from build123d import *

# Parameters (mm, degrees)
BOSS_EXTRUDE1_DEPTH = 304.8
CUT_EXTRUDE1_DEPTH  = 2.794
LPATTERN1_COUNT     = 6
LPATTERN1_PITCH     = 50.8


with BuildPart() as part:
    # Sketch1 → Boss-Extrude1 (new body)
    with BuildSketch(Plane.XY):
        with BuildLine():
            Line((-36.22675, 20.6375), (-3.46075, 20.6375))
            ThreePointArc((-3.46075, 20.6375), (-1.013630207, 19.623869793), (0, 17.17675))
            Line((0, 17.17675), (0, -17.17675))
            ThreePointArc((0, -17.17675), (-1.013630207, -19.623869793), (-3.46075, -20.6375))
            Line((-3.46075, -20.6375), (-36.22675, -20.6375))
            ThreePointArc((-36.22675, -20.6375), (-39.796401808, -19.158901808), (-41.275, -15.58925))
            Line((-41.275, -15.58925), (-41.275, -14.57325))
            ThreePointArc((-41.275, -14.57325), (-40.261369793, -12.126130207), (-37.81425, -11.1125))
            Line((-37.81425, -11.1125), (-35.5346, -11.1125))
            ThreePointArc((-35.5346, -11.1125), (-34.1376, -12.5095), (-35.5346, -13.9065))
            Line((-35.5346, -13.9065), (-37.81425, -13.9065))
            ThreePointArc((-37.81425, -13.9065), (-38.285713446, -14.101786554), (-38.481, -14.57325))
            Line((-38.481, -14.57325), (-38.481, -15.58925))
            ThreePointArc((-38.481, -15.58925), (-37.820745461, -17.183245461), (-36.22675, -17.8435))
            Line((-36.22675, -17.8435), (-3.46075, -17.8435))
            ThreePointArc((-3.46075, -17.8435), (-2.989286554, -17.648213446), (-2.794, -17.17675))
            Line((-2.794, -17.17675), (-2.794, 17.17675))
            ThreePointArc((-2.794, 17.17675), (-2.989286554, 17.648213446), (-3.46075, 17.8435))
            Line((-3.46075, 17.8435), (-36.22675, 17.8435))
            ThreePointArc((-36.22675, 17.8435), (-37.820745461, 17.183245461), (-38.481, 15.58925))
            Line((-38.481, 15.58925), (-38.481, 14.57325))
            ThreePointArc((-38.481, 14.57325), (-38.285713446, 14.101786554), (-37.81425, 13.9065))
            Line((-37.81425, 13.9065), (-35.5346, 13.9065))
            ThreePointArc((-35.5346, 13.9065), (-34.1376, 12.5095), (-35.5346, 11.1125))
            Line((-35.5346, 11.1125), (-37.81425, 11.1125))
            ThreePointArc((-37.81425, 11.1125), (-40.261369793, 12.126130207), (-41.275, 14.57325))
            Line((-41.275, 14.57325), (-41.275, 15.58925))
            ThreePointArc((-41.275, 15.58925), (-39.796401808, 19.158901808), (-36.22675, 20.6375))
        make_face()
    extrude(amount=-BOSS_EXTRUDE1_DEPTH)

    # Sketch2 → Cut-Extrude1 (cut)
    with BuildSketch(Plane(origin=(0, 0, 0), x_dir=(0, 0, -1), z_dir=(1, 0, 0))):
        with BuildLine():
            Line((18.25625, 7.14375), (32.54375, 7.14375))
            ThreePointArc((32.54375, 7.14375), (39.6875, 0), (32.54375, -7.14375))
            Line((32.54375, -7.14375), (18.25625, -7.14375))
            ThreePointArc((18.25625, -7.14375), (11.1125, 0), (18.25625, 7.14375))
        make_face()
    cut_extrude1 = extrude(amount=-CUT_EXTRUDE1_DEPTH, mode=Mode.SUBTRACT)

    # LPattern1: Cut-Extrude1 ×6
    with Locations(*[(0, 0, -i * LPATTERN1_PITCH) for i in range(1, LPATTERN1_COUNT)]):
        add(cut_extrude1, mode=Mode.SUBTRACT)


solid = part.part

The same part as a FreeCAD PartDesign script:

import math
import FreeCAD as App
import Part
import Sketcher

V = App.Vector
Q = App.Units.Quantity

doc = App.newDocument("Part")
params = doc.addObject("Spreadsheet::Sheet", "Params")
for row, (alias, value) in enumerate([
    ("sketch1_radius", "0.055 in"),
    ("sketch1_width", "1.29 in"),
    ("sketch1_height", "0.04 in"),
    ("pad1_length", "12 in"),
    ("sketch2_radius", "0.28125 in"),
    ("sketch2_height", "0.5625 in"),
    ("pocket1_length", "0.11 in"),
    ("linearpattern_pitch", "2 in"),
], start=1):
    params.set(f"A{row}", alias)
    params.set(f"B{row}", "=" + value)
    params.setAlias(f"B{row}", alias)

body = doc.addObject("PartDesign::Body", "Body")

# Sketch on XY plane
sketch1 = doc.addObject("Sketcher::SketchObject", "Sketch")
body.addObject(sketch1)
sketch1.AttachmentSupport = (doc.XY_Plane, [""])
sketch1.MapMode = "FlatFace"
sketch1.addGeometry([
    Part.LineSegment(V(-3.5, 20.6, 0), V(-36.2, 20.6, 0)),  # 0
    Part.ArcOfCircle(Part.Circle(V(-36.2, 15.6, 0), V(0, 0, 1), 5), math.radians(90), math.radians(180)),  # 1
    Part.LineSegment(V(-41.3, 15.6, 0), V(-41.3, 14.6, 0)),  # 2
    Part.ArcOfCircle(Part.Circle(V(-37.8, 14.6, 0), V(0, 0, 1), 3.5), math.radians(180), math.radians(270)),  # 3
    Part.LineSegment(V(-37.8, 11.1, 0), V(-35.5, 11.1, 0)),  # 4
    Part.ArcOfCircle(Part.Circle(V(-35.5, 12.5, 0), V(0, 0, 1), 1.4), math.radians(-90), math.radians(90)),  # 5
    Part.LineSegment(V(-35.5, 13.9, 0), V(-37.8, 13.9, 0)),  # 6
    Part.ArcOfCircle(Part.Circle(V(-37.8, 14.6, 0), V(0, 0, 1), 0.7), math.radians(-180), math.radians(-90)),  # 7
    Part.LineSegment(V(-38.5, 14.6, 0), V(-38.5, 15.6, 0)),  # 8
    Part.ArcOfCircle(Part.Circle(V(-36.2, 15.6, 0), V(0, 0, 1), 2.3), math.radians(90), math.radians(180)),  # 9
    Part.LineSegment(V(-36.2, 17.8, 0), V(-3.5, 17.8, 0)),  # 10
    Part.ArcOfCircle(Part.Circle(V(-3.5, 17.2, 0), V(0, 0, 1), 0.7), math.radians(0), math.radians(90)),  # 11
    Part.LineSegment(V(-2.8, 17.2, 0), V(-2.8, -17.2, 0)),  # 12
    Part.ArcOfCircle(Part.Circle(V(-3.5, -17.2, 0), V(0, 0, 1), 0.7), math.radians(-90), math.radians(0)),  # 13
    Part.LineSegment(V(-3.5, -17.8, 0), V(-36.2, -17.8, 0)),  # 14
    Part.ArcOfCircle(Part.Circle(V(-36.2, -15.6, 0), V(0, 0, 1), 2.3), math.radians(-180), math.radians(-90)),  # 15
    Part.LineSegment(V(-38.5, -15.6, 0), V(-38.5, -14.6, 0)),  # 16
    Part.ArcOfCircle(Part.Circle(V(-37.8, -14.6, 0), V(0, 0, 1), 0.7), math.radians(90), math.radians(180)),  # 17
    Part.LineSegment(V(-37.8, -13.9, 0), V(-35.5, -13.9, 0)),  # 18
    Part.ArcOfCircle(Part.Circle(V(-35.5, -12.5, 0), V(0, 0, 1), 1.4), math.radians(-90), math.radians(90)),  # 19
    Part.LineSegment(V(-35.5, -11.1, 0), V(-37.8, -11.1, 0)),  # 20
    Part.ArcOfCircle(Part.Circle(V(-37.8, -14.6, 0), V(0, 0, 1), 3.5), math.radians(90), math.radians(180)),  # 21
    Part.LineSegment(V(-41.3, -14.6, 0), V(-41.3, -15.6, 0)),  # 22
    Part.ArcOfCircle(Part.Circle(V(-36.2, -15.6, 0), V(0, 0, 1), 5), math.radians(180), math.radians(270)),  # 23
    Part.LineSegment(V(-36.2, -20.6, 0), V(-3.5, -20.6, 0)),  # 24
    Part.ArcOfCircle(Part.Circle(V(-3.5, -17.2, 0), V(0, 0, 1), 3.5), math.radians(-90), math.radians(0)),  # 25
    Part.LineSegment(V(0, -17.2, 0), V(0, 17.2, 0)),  # 26
    Part.ArcOfCircle(Part.Circle(V(-3.5, 17.2, 0), V(0, 0, 1), 3.5), math.radians(0), math.radians(90)),  # 27
], False)
sketch1.addConstraint([
    Sketcher.Constraint("Tangent", 0, 2, 1, 1),
    Sketcher.Constraint("Tangent", 1, 2, 2, 1),
    Sketcher.Constraint("Tangent", 2, 2, 3, 1),
    Sketcher.Constraint("Tangent", 3, 2, 4, 1),
    Sketcher.Constraint("Tangent", 4, 2, 5, 1),
    Sketcher.Constraint("Tangent", 5, 2, 6, 1),
    Sketcher.Constraint("Tangent", 6, 2, 7, 2),
    Sketcher.Constraint("Tangent", 7, 1, 8, 1),
    Sketcher.Constraint("Tangent", 8, 2, 9, 2),
    Sketcher.Constraint("Tangent", 9, 1, 10, 1),
    Sketcher.Constraint("Tangent", 10, 2, 11, 2),
    Sketcher.Constraint("Tangent", 11, 1, 12, 1),
    Sketcher.Constraint("Tangent", 12, 2, 13, 2),
    Sketcher.Constraint("Tangent", 13, 1, 14, 1),
    Sketcher.Constraint("Tangent", 14, 2, 15, 2),
    Sketcher.Constraint("Tangent", 15, 1, 16, 1),
    Sketcher.Constraint("Tangent", 16, 2, 17, 2),
    Sketcher.Constraint("Tangent", 17, 1, 18, 1),
    Sketcher.Constraint("Tangent", 18, 2, 19, 1),
    Sketcher.Constraint("Tangent", 19, 2, 20, 1),
    Sketcher.Constraint("Tangent", 20, 2, 21, 1),
    Sketcher.Constraint("Tangent", 21, 2, 22, 1),
    Sketcher.Constraint("Tangent", 22, 2, 23, 1),
    Sketcher.Constraint("Tangent", 23, 2, 24, 1),
    Sketcher.Constraint("Tangent", 24, 2, 25, 1),
    Sketcher.Constraint("Tangent", 25, 2, 26, 1),
    Sketcher.Constraint("Tangent", 26, 2, 27, 1),
    Sketcher.Constraint("Tangent", 27, 2, 0, 1),
    Sketcher.Constraint("Horizontal", 0),
    Sketcher.Constraint("Vertical", 2),
    Sketcher.Constraint("Horizontal", 4),
    Sketcher.Constraint("Horizontal", 6),
    Sketcher.Constraint("Vertical", 8),
    Sketcher.Constraint("Horizontal", 10),
    Sketcher.Constraint("Vertical", 12),
    Sketcher.Constraint("Horizontal", 14),
    Sketcher.Constraint("Vertical", 16),
    Sketcher.Constraint("Horizontal", 18),
    Sketcher.Constraint("Horizontal", 20),
    Sketcher.Constraint("Vertical", 22),
    Sketcher.Constraint("Horizontal", 24),
    Sketcher.Constraint("Vertical", 26),
    Sketcher.Constraint("Coincident", 7, 3, 3, 3),
    Sketcher.Constraint("Coincident", 9, 3, 1, 3),
    Sketcher.Constraint("Coincident", 21, 3, 17, 3),
    Sketcher.Constraint("Coincident", 23, 3, 15, 3),
    Sketcher.Constraint("Coincident", 25, 3, 13, 3),
    Sketcher.Constraint("Coincident", 27, 3, 11, 3),
    Sketcher.Constraint("Equal", 7, 11),
    Sketcher.Constraint("Equal", 11, 13),
    Sketcher.Constraint("Equal", 9, 15),
    Sketcher.Constraint("Equal", 13, 17),
    Sketcher.Constraint("Symmetric", 25, 2, 26, 2, -1, 1),
    Sketcher.Constraint("Symmetric", 3, 3, 17, 3, -1),
    Sketcher.Constraint("Vertical", 5, 3, 19, 3),
    Sketcher.Constraint("Radius", 5, Q("0.055 in")),
    Sketcher.Constraint("DistanceX", 0, 2, 0, 1, Q("1.29 in")),
    Sketcher.Constraint("DistanceY", 2, 2, 2, 1, Q("0.04 in")),
    Sketcher.Constraint("DistanceY", 13, 3, 9, 3, Q("1.29 in")),
    Sketcher.Constraint("DistanceY", 5, 3, 0, 2, Q("0.32 in")),
    Sketcher.Constraint("DistanceY", 12, 2, 12, 1, Q("1.3525 in")),
    Sketcher.Constraint("DistanceX", 5, 3, -1, 1, Q("1.399 in")),
])
sketch1.setExpression("Constraints[55]", "Params.sketch1_radius")
sketch1.setExpression("Constraints[56]", "Params.sketch1_width")
sketch1.setExpression("Constraints[57]", "Params.sketch1_height")
pad1 = doc.addObject("PartDesign::Pad", "Pad")
body.addObject(pad1)
pad1.Profile = sketch1
pad1.setExpression("Length", "Params.pad1_length")
pad1.Reversed = True

# Sketch on YZ plane
sketch2 = doc.addObject("Sketcher::SketchObject", "Sketch001")
body.addObject(sketch2)
sketch2.AttachmentSupport = (doc.YZ_Plane, [""])
sketch2.MapMode = "FlatFace"
sketch2.addGeometry([
    Part.LineSegment(V(7, -33, 0), V(7, -18, 0)),
    Part.ArcOfCircle(Part.Circle(V(0, -18, 0), V(0, 0, 1), 7), math.radians(0), math.radians(180)),
    Part.LineSegment(V(-7, -18, 0), V(-7, -33, 0)),
    Part.ArcOfCircle(Part.Circle(V(0, -33, 0), V(0, 0, 1), 7), math.radians(180), math.radians(360)),
], False)
sketch2.addConstraint([
    Sketcher.Constraint("Tangent", 0, 2, 1, 1),
    Sketcher.Constraint("Tangent", 1, 2, 2, 1),
    Sketcher.Constraint("Tangent", 2, 2, 3, 1),
    Sketcher.Constraint("Tangent", 3, 2, 0, 1),
    Sketcher.Constraint("Vertical", 0),
    Sketcher.Constraint("Vertical", 2),
    Sketcher.Constraint("PointOnObject", 1, 3, -2),
    Sketcher.Constraint("Radius", 1, Q("0.28125 in")),
    Sketcher.Constraint("DistanceY", 0, 1, 0, 2, Q("0.5625 in")),
    Sketcher.Constraint("DistanceY", 1, 3, -1, 1, Q("0.71875 in")),
])
sketch2.setExpression("Constraints[7]", "Params.sketch2_radius")
sketch2.setExpression("Constraints[8]", "Params.sketch2_height")
pocket1 = doc.addObject("PartDesign::Pocket", "Pocket")
body.addObject(pocket1)
pocket1.Profile = sketch2
pocket1.setExpression("Length", "Params.pocket1_length")
doc.recompute()

linearpattern = doc.addObject("PartDesign::LinearPattern", "LinearPattern")
body.addObject(linearpattern)
linearpattern.Originals = [pocket1]
linearpattern.Direction = (doc.Z_Axis, [""])
linearpattern.Mode = "offset"
linearpattern.setExpression("Offset", "Params.linearpattern_pitch")
linearpattern.Occurrences = 6
linearpattern.Reversed = True
body.Tip = linearpattern

doc.recompute()
